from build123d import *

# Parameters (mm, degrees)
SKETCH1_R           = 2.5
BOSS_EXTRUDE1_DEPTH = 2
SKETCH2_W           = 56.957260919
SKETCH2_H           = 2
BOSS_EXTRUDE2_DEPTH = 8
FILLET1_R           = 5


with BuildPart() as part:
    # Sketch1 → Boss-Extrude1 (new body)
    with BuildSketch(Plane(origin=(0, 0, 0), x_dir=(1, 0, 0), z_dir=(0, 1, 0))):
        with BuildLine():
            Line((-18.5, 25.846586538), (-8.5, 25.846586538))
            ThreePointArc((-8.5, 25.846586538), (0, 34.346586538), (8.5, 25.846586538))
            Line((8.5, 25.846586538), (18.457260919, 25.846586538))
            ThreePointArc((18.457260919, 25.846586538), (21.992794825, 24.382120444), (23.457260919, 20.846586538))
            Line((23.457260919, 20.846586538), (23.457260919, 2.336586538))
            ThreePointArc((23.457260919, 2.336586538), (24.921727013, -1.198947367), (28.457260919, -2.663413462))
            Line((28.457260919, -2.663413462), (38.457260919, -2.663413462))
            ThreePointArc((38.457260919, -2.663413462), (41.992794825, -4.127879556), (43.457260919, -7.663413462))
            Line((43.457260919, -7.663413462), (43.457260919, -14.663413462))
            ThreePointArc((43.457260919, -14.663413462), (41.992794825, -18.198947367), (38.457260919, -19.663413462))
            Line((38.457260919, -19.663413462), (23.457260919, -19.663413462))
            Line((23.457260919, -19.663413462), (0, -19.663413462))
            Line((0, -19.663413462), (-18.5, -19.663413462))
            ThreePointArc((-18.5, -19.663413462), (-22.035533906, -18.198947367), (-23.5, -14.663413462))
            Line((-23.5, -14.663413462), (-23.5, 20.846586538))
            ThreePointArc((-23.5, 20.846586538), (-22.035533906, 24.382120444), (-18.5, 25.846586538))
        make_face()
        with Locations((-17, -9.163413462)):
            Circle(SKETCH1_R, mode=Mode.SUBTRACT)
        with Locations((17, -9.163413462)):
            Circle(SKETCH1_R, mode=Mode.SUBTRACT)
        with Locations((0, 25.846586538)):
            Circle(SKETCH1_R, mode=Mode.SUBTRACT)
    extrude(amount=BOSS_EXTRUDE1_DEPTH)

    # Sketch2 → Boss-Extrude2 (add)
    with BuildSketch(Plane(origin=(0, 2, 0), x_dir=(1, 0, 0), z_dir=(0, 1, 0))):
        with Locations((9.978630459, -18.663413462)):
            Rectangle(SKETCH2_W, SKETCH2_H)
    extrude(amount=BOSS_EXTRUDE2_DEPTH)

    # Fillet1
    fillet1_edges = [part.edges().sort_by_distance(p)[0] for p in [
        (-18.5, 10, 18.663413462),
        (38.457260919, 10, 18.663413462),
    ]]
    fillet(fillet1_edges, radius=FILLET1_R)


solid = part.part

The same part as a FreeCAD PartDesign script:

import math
import FreeCAD as App
import Part
import Sketcher


def edges_at(feature, points):
    """Names of the edges that pass closest to the given points."""
    edges = feature.Shape.Edges
    near = lambda p: min(range(len(edges)), key=lambda i: edges[i].distToShape(Part.Vertex(*p))[0])
    return sorted({f"Edge{near(p) + 1}" for p in points})

doc = App.newDocument("Part")
body = doc.addObject("PartDesign::Body", "Body")

sketch1 = body.newObject("Sketcher::SketchObject", "Sketch")
sketch1.AttachmentSupport = (doc.getObject("XZ_Plane"), [""])
sketch1.MapMode = "FlatFace"
sketch1.addGeometry([
    Part.LineSegment(App.Vector(-8.5, -25.8, 0), App.Vector(-18.5, -25.8, 0)),
    Part.ArcOfCircle(Part.Circle(App.Vector(-18.5, -20.8, 0), App.Vector(0, 0, 1), 5), math.radians(180), math.radians(270)),
    Part.LineSegment(App.Vector(-23.5, -20.8, 0), App.Vector(-23.5, 14.7, 0)),
    Part.ArcOfCircle(Part.Circle(App.Vector(-18.5, 14.7, 0), App.Vector(0, 0, 1), 5), math.radians(90), math.radians(180)),
    Part.LineSegment(App.Vector(-18.5, 19.7, 0), App.Vector(38.5, 19.7, 0)),
    Part.ArcOfCircle(Part.Circle(App.Vector(38.5, 14.7, 0), App.Vector(0, 0, 1), 5), math.radians(0), math.radians(90)),
    Part.LineSegment(App.Vector(43.5, 14.7, 0), App.Vector(43.5, 7.7, 0)),
    Part.ArcOfCircle(Part.Circle(App.Vector(38.5, 7.7, 0), App.Vector(0, 0, 1), 5), math.radians(-90), math.radians(0)),
    Part.LineSegment(App.Vector(38.5, 2.7, 0), App.Vector(28.5, 2.7, 0)),
    Part.ArcOfCircle(Part.Circle(App.Vector(28.5, -2.3, 0), App.Vector(0, 0, 1), 5), math.radians(90), math.radians(180)),
    Part.LineSegment(App.Vector(23.5, -2.3, 0), App.Vector(23.5, -20.8, 0)),
    Part.ArcOfCircle(Part.Circle(App.Vector(18.5, -20.8, 0), App.Vector(0, 0, 1), 5), math.radians(-90), math.radians(0)),
    Part.LineSegment(App.Vector(18.5, -25.8, 0), App.Vector(8.5, -25.8, 0)),
    Part.ArcOfCircle(Part.Circle(App.Vector(0, -25.8, 0), App.Vector(0, 0, 1), 8.5), math.radians(180), math.radians(360)),
    Part.Circle(App.Vector(17, 9.2, 0), App.Vector(0, 0, 1), 2.5),
    Part.Circle(App.Vector(-17, 9.2, 0), App.Vector(0, 0, 1), 2.5),
    Part.Circle(App.Vector(0, -25.8, 0), App.Vector(0, 0, 1), 2.5),
], False)
sketch1.addConstraint([
    Sketcher.Constraint("Tangent", 0, 2, 1, 2),
    Sketcher.Constraint("Tangent", 1, 1, 2, 1),
    Sketcher.Constraint("Tangent", 2, 2, 3, 2),
    Sketcher.Constraint("Tangent", 3, 1, 4, 1),
    Sketcher.Constraint("Tangent", 4, 2, 5, 2),
    Sketcher.Constraint("Tangent", 5, 1, 6, 1),
    Sketcher.Constraint("Tangent", 6, 2, 7, 2),
    Sketcher.Constraint("Tangent", 7, 1, 8, 1),
    Sketcher.Constraint("Tangent", 8, 2, 9, 1),
    Sketcher.Constraint("Tangent", 9, 2, 10, 1),
    Sketcher.Constraint("Tangent", 10, 2, 11, 2),
    Sketcher.Constraint("Tangent", 11, 1, 12, 1),
    Sketcher.Constraint("Coincident", 12, 2, 13, 2),
    Sketcher.Constraint("Coincident", 13, 1, 0, 1),
    Sketcher.Constraint("Horizontal", 0),
    Sketcher.Constraint("Vertical", 2),
    Sketcher.Constraint("Horizontal", 4),
    Sketcher.Constraint("Vertical", 6),
    Sketcher.Constraint("Horizontal", 8),
    Sketcher.Constraint("Vertical", 10),
    Sketcher.Constraint("Horizontal", 12),
    Sketcher.Constraint("Coincident", 16, 3, 13, 3),
    Sketcher.Constraint("Equal", 1, 3),
    Sketcher.Constraint("Equal", 3, 5),
    Sketcher.Constraint("Equal", 5, 7),
    Sketcher.Constraint("Equal", 7, 9),
    Sketcher.Constraint("Equal", 9, 11),
    Sketcher.Constraint("Equal", 14, 15),
    Sketcher.Constraint("Equal", 15, 16),
    Sketcher.Constraint("Symmetric", 14, 3, 15, 3, -2),
    Sketcher.Constraint("Symmetric", 12, 2, 13, 1, -2),
    Sketcher.Constraint("Horizontal", 16, 3, 0, 2),
    Sketcher.Constraint("Equal", 0, 8),
    Sketcher.Constraint("Diameter", 14, 5.0),
    Sketcher.Constraint("Radius", 1, 5.0),
    Sketcher.Constraint("Radius", 13, 8.5),
    Sketcher.Constraint("DistanceX", 0, 2, 0, 1, 10.0),
    Sketcher.Constraint("DistanceY", 6, 2, 6, 1, 7.0),
    Sketcher.Constraint("DistanceX", -1, 1, 14, 3, 17.0),
    Sketcher.Constraint("DistanceY", 2, 1, 2, 2, 35.51),
    Sketcher.Constraint("DistanceY", 9, 3, 14, 3, 11.5),
    Sketcher.Constraint("DistanceX", 4, 1, 4, 2, 56.957261),
    Sketcher.Constraint("DistanceY", 1, 3, -1, 1, 20.846587),
])
pad1 = body.newObject("PartDesign::Pad", "Pad")
pad1.Profile = sketch1
pad1.Length = 2
pad1.Reversed = True

sketch2 = body.newObject("Sketcher::SketchObject", "Sketch001")
sketch2.AttachmentSupport = (doc.getObject("XZ_Plane"), [""])
sketch2.MapMode = "FlatFace"
sketch2.AttachmentOffset = App.Placement(App.Vector(0, 0, -2), App.Rotation())
sketch2.addGeometry([
    Part.LineSegment(App.Vector(-18.5, 17.7, 0), App.Vector(-18.5, 19.7, 0)),
    Part.LineSegment(App.Vector(-18.5, 19.7, 0), App.Vector(38.5, 19.7, 0)),
    Part.LineSegment(App.Vector(38.5, 19.7, 0), App.Vector(38.5, 17.7, 0)),
    Part.LineSegment(App.Vector(38.5, 17.7, 0), App.Vector(-18.5, 17.7, 0)),
], False)
sketch2.addConstraint([
    Sketcher.Constraint("Coincident", 0, 2, 1, 1),
    Sketcher.Constraint("Coincident", 1, 2, 2, 1),
    Sketcher.Constraint("Coincident", 2, 2, 3, 1),
    Sketcher.Constraint("Coincident", 3, 2, 0, 1),
    Sketcher.Constraint("Vertical", 0),
    Sketcher.Constraint("Horizontal", 1),
    Sketcher.Constraint("Vertical", 2),
    Sketcher.Constraint("Horizontal", 3),
    Sketcher.Constraint("DistanceY", 0, 1, 0, 2, 2.0),
    Sketcher.Constraint("DistanceX", 0, 2, -1, 1, 18.5),
    Sketcher.Constraint("DistanceX", 1, 1, 1, 2, 56.957261),
    Sketcher.Constraint("DistanceY", -1, 1, 0, 2, 19.663413),
])
pad2 = body.newObject("PartDesign::Pad", "Pad001")
pad2.Profile = sketch2
pad2.Length = 8
pad2.Reversed = True
doc.recompute()

fillet = body.newObject("PartDesign::Fillet", "Fillet")
fillet.Base = (pad2, edges_at(pad2, [(-18.5, 10, 18.663), (38.457, 10, 18.663)]))
fillet.Radius = 5

doc.recompute()
